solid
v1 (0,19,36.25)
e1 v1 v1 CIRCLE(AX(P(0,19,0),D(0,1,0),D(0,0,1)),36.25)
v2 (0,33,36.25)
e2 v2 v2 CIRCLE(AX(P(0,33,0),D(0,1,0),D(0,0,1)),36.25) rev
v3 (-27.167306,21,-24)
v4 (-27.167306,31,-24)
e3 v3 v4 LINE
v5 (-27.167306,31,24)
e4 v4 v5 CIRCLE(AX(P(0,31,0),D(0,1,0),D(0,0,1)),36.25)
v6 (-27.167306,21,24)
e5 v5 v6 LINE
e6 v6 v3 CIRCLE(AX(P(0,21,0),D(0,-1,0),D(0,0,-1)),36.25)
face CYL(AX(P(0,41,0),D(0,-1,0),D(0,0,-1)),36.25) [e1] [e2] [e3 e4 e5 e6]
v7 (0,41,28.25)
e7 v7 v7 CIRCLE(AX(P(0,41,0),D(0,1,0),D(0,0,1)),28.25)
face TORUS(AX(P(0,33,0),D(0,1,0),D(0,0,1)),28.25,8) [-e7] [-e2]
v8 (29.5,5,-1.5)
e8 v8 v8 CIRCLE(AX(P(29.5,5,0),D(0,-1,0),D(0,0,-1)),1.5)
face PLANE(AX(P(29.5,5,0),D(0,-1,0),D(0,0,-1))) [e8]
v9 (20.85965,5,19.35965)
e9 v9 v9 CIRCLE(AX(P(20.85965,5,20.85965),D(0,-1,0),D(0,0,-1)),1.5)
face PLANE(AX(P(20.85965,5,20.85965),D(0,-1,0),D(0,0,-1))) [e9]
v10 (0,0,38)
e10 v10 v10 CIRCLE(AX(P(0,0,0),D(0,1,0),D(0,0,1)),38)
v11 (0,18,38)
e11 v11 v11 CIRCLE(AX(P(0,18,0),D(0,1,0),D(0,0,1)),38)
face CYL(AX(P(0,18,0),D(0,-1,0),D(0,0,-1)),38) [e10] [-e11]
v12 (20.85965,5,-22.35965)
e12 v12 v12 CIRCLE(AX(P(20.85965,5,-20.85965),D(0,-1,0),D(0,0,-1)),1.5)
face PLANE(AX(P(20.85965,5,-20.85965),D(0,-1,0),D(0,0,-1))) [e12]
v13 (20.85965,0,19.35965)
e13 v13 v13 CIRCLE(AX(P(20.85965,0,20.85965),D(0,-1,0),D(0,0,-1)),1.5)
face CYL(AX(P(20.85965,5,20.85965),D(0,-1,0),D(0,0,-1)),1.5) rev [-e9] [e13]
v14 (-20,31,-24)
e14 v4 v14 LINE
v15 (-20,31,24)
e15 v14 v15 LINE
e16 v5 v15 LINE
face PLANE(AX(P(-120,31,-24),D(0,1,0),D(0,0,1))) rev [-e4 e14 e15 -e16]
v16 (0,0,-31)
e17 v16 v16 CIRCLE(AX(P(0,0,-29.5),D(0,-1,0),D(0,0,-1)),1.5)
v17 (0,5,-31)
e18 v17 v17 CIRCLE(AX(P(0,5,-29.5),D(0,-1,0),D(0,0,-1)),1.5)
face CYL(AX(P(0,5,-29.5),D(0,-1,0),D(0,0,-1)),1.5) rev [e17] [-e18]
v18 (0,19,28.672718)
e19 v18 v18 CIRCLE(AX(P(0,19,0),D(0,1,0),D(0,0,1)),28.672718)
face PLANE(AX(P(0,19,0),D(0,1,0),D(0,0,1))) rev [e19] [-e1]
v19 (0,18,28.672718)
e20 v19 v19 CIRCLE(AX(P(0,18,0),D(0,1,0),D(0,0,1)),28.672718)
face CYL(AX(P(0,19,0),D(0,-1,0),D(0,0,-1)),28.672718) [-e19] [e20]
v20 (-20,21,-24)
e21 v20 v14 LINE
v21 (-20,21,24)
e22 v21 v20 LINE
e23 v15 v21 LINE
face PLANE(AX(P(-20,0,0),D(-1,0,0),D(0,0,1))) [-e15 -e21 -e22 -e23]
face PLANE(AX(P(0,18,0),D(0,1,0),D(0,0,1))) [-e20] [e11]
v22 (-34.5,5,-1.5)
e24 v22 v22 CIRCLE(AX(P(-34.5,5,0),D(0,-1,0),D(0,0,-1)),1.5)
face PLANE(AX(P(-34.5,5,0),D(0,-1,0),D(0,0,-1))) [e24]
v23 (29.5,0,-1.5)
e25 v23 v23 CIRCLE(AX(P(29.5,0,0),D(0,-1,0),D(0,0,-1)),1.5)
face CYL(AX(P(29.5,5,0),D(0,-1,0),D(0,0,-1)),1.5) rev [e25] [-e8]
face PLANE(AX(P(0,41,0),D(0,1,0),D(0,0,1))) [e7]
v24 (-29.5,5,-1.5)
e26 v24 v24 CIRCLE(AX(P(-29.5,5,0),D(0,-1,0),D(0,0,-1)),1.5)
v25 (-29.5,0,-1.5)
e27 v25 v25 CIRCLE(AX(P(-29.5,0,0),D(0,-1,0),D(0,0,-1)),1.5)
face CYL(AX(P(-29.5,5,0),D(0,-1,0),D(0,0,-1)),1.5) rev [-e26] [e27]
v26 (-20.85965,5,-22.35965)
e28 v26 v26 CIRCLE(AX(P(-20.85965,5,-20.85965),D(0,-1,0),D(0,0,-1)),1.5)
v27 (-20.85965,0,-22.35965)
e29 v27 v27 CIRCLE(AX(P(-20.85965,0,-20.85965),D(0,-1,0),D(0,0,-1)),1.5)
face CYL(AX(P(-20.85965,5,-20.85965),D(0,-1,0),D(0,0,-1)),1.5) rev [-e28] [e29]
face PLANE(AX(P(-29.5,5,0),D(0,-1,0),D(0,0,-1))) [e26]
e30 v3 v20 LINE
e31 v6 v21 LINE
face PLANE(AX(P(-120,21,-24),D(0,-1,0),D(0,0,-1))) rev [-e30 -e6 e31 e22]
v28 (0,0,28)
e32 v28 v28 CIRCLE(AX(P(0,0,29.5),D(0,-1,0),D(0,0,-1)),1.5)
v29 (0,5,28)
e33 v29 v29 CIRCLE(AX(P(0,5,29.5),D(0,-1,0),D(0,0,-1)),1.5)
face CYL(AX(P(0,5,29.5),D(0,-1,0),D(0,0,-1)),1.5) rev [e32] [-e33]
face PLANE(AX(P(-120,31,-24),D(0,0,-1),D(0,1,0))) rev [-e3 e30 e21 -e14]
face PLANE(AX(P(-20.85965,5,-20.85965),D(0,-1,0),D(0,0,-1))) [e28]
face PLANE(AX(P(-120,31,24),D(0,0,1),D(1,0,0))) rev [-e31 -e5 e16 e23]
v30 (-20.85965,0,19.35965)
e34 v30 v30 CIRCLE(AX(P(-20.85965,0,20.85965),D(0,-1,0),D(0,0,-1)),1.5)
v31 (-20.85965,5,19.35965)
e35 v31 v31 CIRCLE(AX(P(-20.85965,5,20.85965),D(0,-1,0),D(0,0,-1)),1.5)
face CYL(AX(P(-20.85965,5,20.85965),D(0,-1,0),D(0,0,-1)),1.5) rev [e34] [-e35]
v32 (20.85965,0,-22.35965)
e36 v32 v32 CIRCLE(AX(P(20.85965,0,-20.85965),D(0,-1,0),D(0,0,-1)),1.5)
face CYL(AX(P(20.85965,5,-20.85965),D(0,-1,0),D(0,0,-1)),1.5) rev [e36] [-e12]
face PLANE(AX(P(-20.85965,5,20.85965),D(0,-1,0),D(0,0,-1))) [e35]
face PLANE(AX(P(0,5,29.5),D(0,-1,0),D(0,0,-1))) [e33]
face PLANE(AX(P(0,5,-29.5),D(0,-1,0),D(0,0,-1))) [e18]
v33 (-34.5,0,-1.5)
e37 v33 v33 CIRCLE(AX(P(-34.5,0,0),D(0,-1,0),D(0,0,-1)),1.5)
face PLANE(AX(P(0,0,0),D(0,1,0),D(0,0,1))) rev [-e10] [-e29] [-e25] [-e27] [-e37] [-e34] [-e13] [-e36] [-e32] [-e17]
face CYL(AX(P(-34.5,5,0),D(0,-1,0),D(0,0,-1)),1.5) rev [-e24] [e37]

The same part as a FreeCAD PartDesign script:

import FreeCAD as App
import Part
import Sketcher

V = App.Vector
Q = App.Units.Quantity


def edges_at(feature, points):
    """Names of the edges that pass closest to the given points."""
    edges = feature.Shape.Edges
    near = lambda p: min(range(len(edges)), key=lambda i: edges[i].distToShape(Part.Vertex(*p))[0])
    return sorted({f"Edge{near(p) + 1}" for p in points})

doc = App.newDocument("Part")
body = doc.addObject("PartDesign::Body", "Body")

# Sketch on XZ plane
sketch1 = body.newObject("Sketcher::SketchObject", "Sketch")
sketch1.AttachmentSupport = (doc.getObject("XZ_Plane"), [""])
sketch1.MapMode = "FlatFace"
sketch1.addGeometry(Part.Circle(V(0, 0, 0), V(0, 0, 1), 38), False)
sketch1.addConstraint(Sketcher.Constraint("Coincident", 0, 3, -1, 1))
sketch1.addConstraint(Sketcher.Constraint("Diameter", 0, Q("76 mm")))
pad1 = body.newObject("PartDesign::Pad", "Pad")
pad1.Profile = sketch1
pad1.Length = 18
pad1.Reversed = True

# Sketch on XZ plane
sketch2 = body.newObject("Sketcher::SketchObject", "Sketch001")
sketch2.AttachmentSupport = (doc.getObject("XZ_Plane"), [""])
sketch2.MapMode = "FlatFace"
sketch2.AttachmentOffset = App.Placement(V(0, 0, -18), App.Rotation())
sketch2.addGeometry(Part.Circle(V(0, 0, 0), V(0, 0, 1), 29), False)
sketch2.addConstraint(Sketcher.Constraint("Coincident", 0, 3, -1, 1))
sketch2.addConstraint(Sketcher.Constraint("Diameter", 0, Q("57.345435 mm")))
pad2 = body.newObject("PartDesign::Pad", "Pad001")
pad2.Profile = sketch2
pad2.Length = 1
pad2.Reversed = True

# Sketch on XZ plane
sketch3 = body.newObject("Sketcher::SketchObject", "Sketch002")
sketch3.AttachmentSupport = (doc.getObject("XZ_Plane"), [""])
sketch3.MapMode = "FlatFace"
sketch3.AttachmentOffset = App.Placement(V(0, 0, -19), App.Rotation())
sketch3.addGeometry(Part.Circle(V(0, 0, 0), V(0, 0, 1), 36), False)
sketch3.addConstraint(Sketcher.Constraint("Coincident", 0, 3, -1, 1))
sketch3.addConstraint(Sketcher.Constraint("Diameter", 0, Q("72.5 mm")))
pad3 = body.newObject("PartDesign::Pad", "Pad002")
pad3.Profile = sketch3
pad3.Length = 22
pad3.Reversed = True
doc.recompute()

fillet = body.newObject("PartDesign::Fillet", "Fillet")
fillet.Base = (pad3, edges_at(pad3, [(0, 41, -36.25)]))
fillet.Radius = 8

# Sketch on XZ plane
sketch4 = body.newObject("Sketcher::SketchObject", "Sketch003")
sketch4.AttachmentSupport = (doc.getObject("XZ_Plane"), [""])
sketch4.MapMode = "FlatFace"
sketch4.addGeometry(Part.Circle(V(-29.5, 0, 0), V(0, 0, 1), 1.5), False)
sketch4.addGeometry(Part.Circle(V(-20.9, 20.9, 0), V(0, 0, 1), 1.5), False)
sketch4.addGeometry(Part.Circle(V(0, 29.5, 0), V(0, 0, 1), 1.5), False)
sketch4.addGeometry(Part.Circle(V(20.9, 20.9, 0), V(0, 0, 1), 1.5), False)
sketch4.addGeometry(Part.Circle(V(-34.5, 0, 0), V(0, 0, 1), 1.5), False)
sketch4.addGeometry(Part.Circle(V(29.5, 0, 0), V(0, 0, 1), 1.5), False)
sketch4.addGeometry(Part.Circle(V(20.9, -20.9, 0), V(0, 0, 1), 1.5), False)
sketch4.addGeometry(Part.Circle(V(0, -29.5, 0), V(0, 0, 1), 1.5), False)
sketch4.addGeometry(Part.Circle(V(-20.9, -20.9, 0), V(0, 0, 1), 1.5), False)
sketch4.addConstraint(Sketcher.Constraint("Equal", 0, 1))
sketch4.addConstraint(Sketcher.Constraint("Equal", 1, 2))
sketch4.addConstraint(Sketcher.Constraint("Equal", 2, 3))
sketch4.addConstraint(Sketcher.Constraint("Equal", 3, 4))
sketch4.addConstraint(Sketcher.Constraint("Equal", 4, 5))
sketch4.addConstraint(Sketcher.Constraint("Equal", 5, 6))
sketch4.addConstraint(Sketcher.Constraint("Equal", 6, 7))
sketch4.addConstraint(Sketcher.Constraint("Equal", 7, 8))
sketch4.addConstraint(Sketcher.Constraint("Symmetric", 0, 3, 5, 3, -1, 1))
sketch4.addConstraint(Sketcher.Constraint("Symmetric", 1, 3, 6, 3, -1, 1))
sketch4.addConstraint(Sketcher.Constraint("Symmetric", 2, 3, 7, 3, -1, 1))
sketch4.addConstraint(Sketcher.Constraint("Symmetric", 3, 3, 8, 3, -1, 1))
sketch4.addConstraint(Sketcher.Constraint("Symmetric", 1, 3, 3, 3, -2))
sketch4.addConstraint(Sketcher.Constraint("PointOnObject", 0, 3, -1))
sketch4.addConstraint(Sketcher.Constraint("PointOnObject", 2, 3, -2))
sketch4.addConstraint(Sketcher.Constraint("PointOnObject", 4, 3, -1))
sketch4.addConstraint(Sketcher.Constraint("Diameter", 0, Q("3 mm")))
sketch4.addConstraint(Sketcher.Constraint("DistanceX", 4, 3, 0, 3, Q("5 mm")))
sketch4.addConstraint(Sketcher.Constraint("DistanceX", 0, 3, 5, 3, Q("59 mm")))
sketch4.addConstraint(Sketcher.Constraint("DistanceY", -1, 1, 2, 3, Q("29.5 mm")))
sketch4.addConstraint(Sketcher.Constraint("DistanceX", 1, 3, 3, 3, Q("41.7193 mm")))
sketch4.addConstraint(Sketcher.Constraint("DistanceY", 6, 3, 3, 3, Q("41.7193 mm")))
pocket1 = body.newObject("PartDesign::Pocket", "Pocket")
pocket1.Profile = sketch4
pocket1.Length = 5

# Sketch on YZ plane
sketch5 = body.newObject("Sketcher::SketchObject", "Sketch004")
sketch5.AttachmentSupport = (doc.getObject("YZ_Plane"), [""])
sketch5.MapMode = "FlatFace"
sketch5.AttachmentOffset = App.Placement(V(0, 0, -20), App.Rotation())
sketch5.addGeometry(Part.LineSegment(V(31, 24, 0), V(21, 24, 0)), False)
sketch5.addGeometry(Part.LineSegment(V(21, 24, 0), V(21, -24, 0)), False)
sketch5.addGeometry(Part.LineSegment(V(21, -24, 0), V(31, -24, 0)), False)
sketch5.addGeometry(Part.LineSegment(V(31, -24, 0), V(31, 24, 0)), False)
sketch5.addConstraint(Sketcher.Constraint("Coincident", 0, 2, 1, 1))
sketch5.addConstraint(Sketcher.Constraint("Coincident", 1, 2, 2, 1))
sketch5.addConstraint(Sketcher.Constraint("Coincident", 2, 2, 3, 1))
sketch5.addConstraint(Sketcher.Constraint("Coincident", 3, 2, 0, 1))
sketch5.addConstraint(Sketcher.Constraint("Horizontal", 0))
sketch5.addConstraint(Sketcher.Constraint("Vertical", 1))
sketch5.addConstraint(Sketcher.Constraint("Horizontal", 2))
sketch5.addConstraint(Sketcher.Constraint("Vertical", 3))
sketch5.addConstraint(Sketcher.Constraint("DistanceX", 0, 2, 0, 1, Q("10 mm")))
sketch5.addConstraint(Sketcher.Constraint("DistanceY", 1, 2, 1, 1, Q("48 mm")))
sketch5.addConstraint(Sketcher.Constraint("DistanceX", -1, 1, 0, 2, Q("21 mm")))
sketch5.addConstraint(Sketcher.Constraint("DistanceY", -1, 1, 0, 2, Q("24 mm")))
pocket2 = body.newObject("PartDesign::Pocket", "Pocket001")
pocket2.Profile = sketch5
pocket2.Length = 100

doc.recompute()
